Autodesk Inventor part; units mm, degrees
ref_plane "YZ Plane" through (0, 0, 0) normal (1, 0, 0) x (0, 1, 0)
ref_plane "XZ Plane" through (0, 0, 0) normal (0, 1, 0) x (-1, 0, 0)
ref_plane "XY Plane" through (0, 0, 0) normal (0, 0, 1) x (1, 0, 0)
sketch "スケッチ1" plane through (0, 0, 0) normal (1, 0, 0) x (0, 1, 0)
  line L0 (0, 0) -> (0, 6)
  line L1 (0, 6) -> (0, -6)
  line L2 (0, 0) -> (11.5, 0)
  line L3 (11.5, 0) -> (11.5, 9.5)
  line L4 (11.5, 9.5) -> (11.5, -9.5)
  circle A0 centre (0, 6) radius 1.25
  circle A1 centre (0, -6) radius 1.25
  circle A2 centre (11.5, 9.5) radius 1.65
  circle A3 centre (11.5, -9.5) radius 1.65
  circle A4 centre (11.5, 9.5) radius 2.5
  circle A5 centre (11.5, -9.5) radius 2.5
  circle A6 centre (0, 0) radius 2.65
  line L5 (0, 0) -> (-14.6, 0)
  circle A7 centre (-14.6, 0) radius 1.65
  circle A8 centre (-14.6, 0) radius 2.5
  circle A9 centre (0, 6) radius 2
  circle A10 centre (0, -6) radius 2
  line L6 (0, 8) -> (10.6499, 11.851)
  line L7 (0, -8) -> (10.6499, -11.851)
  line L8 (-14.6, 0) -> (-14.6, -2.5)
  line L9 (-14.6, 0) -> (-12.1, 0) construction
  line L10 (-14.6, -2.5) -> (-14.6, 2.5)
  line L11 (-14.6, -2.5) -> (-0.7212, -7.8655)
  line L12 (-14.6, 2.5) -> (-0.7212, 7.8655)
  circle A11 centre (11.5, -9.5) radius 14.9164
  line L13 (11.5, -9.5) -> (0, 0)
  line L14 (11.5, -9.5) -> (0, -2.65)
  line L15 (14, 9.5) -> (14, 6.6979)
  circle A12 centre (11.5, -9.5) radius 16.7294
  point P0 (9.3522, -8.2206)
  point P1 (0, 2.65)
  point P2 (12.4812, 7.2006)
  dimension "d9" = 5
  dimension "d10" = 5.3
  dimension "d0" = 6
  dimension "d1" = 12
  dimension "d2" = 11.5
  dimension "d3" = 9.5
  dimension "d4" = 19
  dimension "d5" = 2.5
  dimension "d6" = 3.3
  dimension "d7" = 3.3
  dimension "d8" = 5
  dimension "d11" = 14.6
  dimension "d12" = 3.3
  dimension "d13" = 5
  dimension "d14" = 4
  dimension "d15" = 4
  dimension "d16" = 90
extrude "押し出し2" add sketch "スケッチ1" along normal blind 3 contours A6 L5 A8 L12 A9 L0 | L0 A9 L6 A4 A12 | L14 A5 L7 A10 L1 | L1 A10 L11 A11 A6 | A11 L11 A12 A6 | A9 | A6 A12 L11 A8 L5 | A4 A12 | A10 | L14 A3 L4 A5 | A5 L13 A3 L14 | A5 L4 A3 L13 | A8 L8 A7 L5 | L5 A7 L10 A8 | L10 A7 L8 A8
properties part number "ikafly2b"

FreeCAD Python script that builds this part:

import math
import FreeCAD as App
import Part
import Sketcher
Q = App.Units.Quantity

doc = App.newDocument("Part")
body = doc.addObject("PartDesign::Body", "Body")

sketch1 = body.newObject("Sketcher::SketchObject", "Sketch")
sketch1.AttachmentSupport = (doc.getObject("YZ_Plane"), [""])
sketch1.MapMode = "FlatFace"
sketch1.addGeometry([
    Part.ArcOfCircle(Part.Circle(App.Vector(11.5, -9.5, 0), App.Vector(0, 0, 1), 16.7), math.radians(90), math.radians(133)),
    Part.ArcOfCircle(Part.Circle(App.Vector(11.5, -9.5, 0), App.Vector(0, 0, 1), 16.7), math.radians(86.64), math.radians(90)),
    Part.ArcOfCircle(Part.Circle(App.Vector(11.5, 9.5, 0), App.Vector(0, 0, 1), 2.5), math.radians(-67), math.radians(110)),
    Part.LineSegment(App.Vector(10.6, 11.9, 0), App.Vector(0, 8, 0)),
    Part.ArcOfCircle(Part.Circle(App.Vector(0, 6, 0), App.Vector(0, 0, 1), 2), math.radians(90), math.radians(111)),
    Part.LineSegment(App.Vector(-0.7, 7.9, 0), App.Vector(-14.6, 2.5, 0)),
    Part.ArcOfCircle(Part.Circle(App.Vector(-14.6, 0, 0), App.Vector(0, 0, 1), 2.5), math.radians(90), math.radians(270)),
    Part.LineSegment(App.Vector(-14.6, -2.5, 0), App.Vector(-0.7, -7.9, 0)),
    Part.ArcOfCircle(Part.Circle(App.Vector(0, -6, 0), App.Vector(0, 0, 1), 2), math.radians(-111), math.radians(-90)),
    Part.LineSegment(App.Vector(0, -8, 0), App.Vector(10.6, -11.9, 0)),
    Part.ArcOfCircle(Part.Circle(App.Vector(11.5, -9.5, 0), App.Vector(0, 0, 1), 2.5), math.radians(-110), math.radians(149)),
    Part.LineSegment(App.Vector(9.4, -8.2, 0), App.Vector(0, -2.6, 0)),
    Part.ArcOfCircle(Part.Circle(App.Vector(0, 0, 0), App.Vector(0, 0, 1), 2.6), math.radians(90), math.radians(270)),
    Part.Circle(App.Vector(-14.6, 0, 0), App.Vector(0, 0, 1), 1.6),
    Part.Circle(App.Vector(0, 6, 0), App.Vector(0, 0, 1), 1.2),
    Part.Circle(App.Vector(11.5, 9.5, 0), App.Vector(0, 0, 1), 1.6),
    Part.Circle(App.Vector(0, -6, 0), App.Vector(0, 0, 1), 1.2),
    Part.Circle(App.Vector(11.5, -9.5, 0), App.Vector(0, 0, 1), 1.6),
], False)
sketch1.addConstraint([
    Sketcher.Constraint("Tangent", 0, 1, 1, 2),
    Sketcher.Constraint("Coincident", 1, 1, 2, 1),
    Sketcher.Constraint("Tangent", 2, 2, 3, 1),
    Sketcher.Constraint("Coincident", 3, 2, 4, 1),
    Sketcher.Constraint("Tangent", 4, 2, 5, 1),
    Sketcher.Constraint("Coincident", 5, 2, 6, 1),
    Sketcher.Constraint("Coincident", 6, 2, 7, 1),
    Sketcher.Constraint("Tangent", 7, 2, 8, 1),
    Sketcher.Constraint("Coincident", 8, 2, 9, 1),
    Sketcher.Constraint("Tangent", 9, 2, 10, 1),
    Sketcher.Constraint("Coincident", 10, 2, 11, 1),
    Sketcher.Constraint("Coincident", 11, 2, 12, 2),
    Sketcher.Constraint("Coincident", 12, 1, 0, 2),
    Sketcher.Constraint("Coincident", 12, 3, -1, 1),
    Sketcher.Constraint("Coincident", 10, 3, 0, 3),
    Sketcher.Constraint("Coincident", 13, 3, 6, 3),
    Sketcher.Constraint("Coincident", 14, 3, 4, 3),
    Sketcher.Constraint("Coincident", 15, 3, 2, 3),
    Sketcher.Constraint("Coincident", 16, 3, 8, 3),
    Sketcher.Constraint("Coincident", 17, 3, 0, 3),
    Sketcher.Constraint("Equal", 0, 1),
    Sketcher.Constraint("Equal", 2, 6),
    Sketcher.Constraint("Equal", 4, 8),
    Sketcher.Constraint("Equal", 6, 10),
    Sketcher.Constraint("Equal", 13, 15),
    Sketcher.Constraint("Equal", 14, 16),
    Sketcher.Constraint("Equal", 15, 17),
    Sketcher.Constraint("Symmetric", 4, 3, 8, 3, -1, 1),
    Sketcher.Constraint("Symmetric", 0, 3, 2, 3, -1),
    Sketcher.Constraint("Symmetric", 5, 2, 6, 2, -1),
    Sketcher.Constraint("PointOnObject", 4, 3, -2),
    Sketcher.Constraint("PointOnObject", 3, 2, -2),
    Sketcher.Constraint("PointOnObject", 8, 2, -2),
    Sketcher.Constraint("PointOnObject", 11, 2, -2),
    Sketcher.Constraint("PointOnObject", 12, 1, -2),
    Sketcher.Constraint("Vertical", 17, 3, 0, 1),
    Sketcher.Constraint("Vertical", 13, 3, 5, 2),
    Sketcher.Constraint("Radius", 4, 2.0),
    Sketcher.Constraint("Diameter", 13, 3.3),
    Sketcher.Constraint("Diameter", 14, 2.5),
    Sketcher.Constraint("Radius", 2, 2.5),
    Sketcher.Constraint("Radius", 12, 2.65),
    Sketcher.Constraint("DistanceY", -1, 1, 4, 3, 6.0),
    Sketcher.Constraint("DistanceY", 0, 3, 2, 3, 19.0),
    Sketcher.Constraint("DistanceX", -1, 1, 0, 3, 11.5),
    Sketcher.Constraint("DistanceX", 6, 3, -1, 1, 14.6),
    Sketcher.Constraint("Angle", 11, Q("149.2198 deg")),
])
pad1 = body.newObject("PartDesign::Pad", "Pad")
pad1.Profile = sketch1
pad1.Length = 3

doc.recompute()
